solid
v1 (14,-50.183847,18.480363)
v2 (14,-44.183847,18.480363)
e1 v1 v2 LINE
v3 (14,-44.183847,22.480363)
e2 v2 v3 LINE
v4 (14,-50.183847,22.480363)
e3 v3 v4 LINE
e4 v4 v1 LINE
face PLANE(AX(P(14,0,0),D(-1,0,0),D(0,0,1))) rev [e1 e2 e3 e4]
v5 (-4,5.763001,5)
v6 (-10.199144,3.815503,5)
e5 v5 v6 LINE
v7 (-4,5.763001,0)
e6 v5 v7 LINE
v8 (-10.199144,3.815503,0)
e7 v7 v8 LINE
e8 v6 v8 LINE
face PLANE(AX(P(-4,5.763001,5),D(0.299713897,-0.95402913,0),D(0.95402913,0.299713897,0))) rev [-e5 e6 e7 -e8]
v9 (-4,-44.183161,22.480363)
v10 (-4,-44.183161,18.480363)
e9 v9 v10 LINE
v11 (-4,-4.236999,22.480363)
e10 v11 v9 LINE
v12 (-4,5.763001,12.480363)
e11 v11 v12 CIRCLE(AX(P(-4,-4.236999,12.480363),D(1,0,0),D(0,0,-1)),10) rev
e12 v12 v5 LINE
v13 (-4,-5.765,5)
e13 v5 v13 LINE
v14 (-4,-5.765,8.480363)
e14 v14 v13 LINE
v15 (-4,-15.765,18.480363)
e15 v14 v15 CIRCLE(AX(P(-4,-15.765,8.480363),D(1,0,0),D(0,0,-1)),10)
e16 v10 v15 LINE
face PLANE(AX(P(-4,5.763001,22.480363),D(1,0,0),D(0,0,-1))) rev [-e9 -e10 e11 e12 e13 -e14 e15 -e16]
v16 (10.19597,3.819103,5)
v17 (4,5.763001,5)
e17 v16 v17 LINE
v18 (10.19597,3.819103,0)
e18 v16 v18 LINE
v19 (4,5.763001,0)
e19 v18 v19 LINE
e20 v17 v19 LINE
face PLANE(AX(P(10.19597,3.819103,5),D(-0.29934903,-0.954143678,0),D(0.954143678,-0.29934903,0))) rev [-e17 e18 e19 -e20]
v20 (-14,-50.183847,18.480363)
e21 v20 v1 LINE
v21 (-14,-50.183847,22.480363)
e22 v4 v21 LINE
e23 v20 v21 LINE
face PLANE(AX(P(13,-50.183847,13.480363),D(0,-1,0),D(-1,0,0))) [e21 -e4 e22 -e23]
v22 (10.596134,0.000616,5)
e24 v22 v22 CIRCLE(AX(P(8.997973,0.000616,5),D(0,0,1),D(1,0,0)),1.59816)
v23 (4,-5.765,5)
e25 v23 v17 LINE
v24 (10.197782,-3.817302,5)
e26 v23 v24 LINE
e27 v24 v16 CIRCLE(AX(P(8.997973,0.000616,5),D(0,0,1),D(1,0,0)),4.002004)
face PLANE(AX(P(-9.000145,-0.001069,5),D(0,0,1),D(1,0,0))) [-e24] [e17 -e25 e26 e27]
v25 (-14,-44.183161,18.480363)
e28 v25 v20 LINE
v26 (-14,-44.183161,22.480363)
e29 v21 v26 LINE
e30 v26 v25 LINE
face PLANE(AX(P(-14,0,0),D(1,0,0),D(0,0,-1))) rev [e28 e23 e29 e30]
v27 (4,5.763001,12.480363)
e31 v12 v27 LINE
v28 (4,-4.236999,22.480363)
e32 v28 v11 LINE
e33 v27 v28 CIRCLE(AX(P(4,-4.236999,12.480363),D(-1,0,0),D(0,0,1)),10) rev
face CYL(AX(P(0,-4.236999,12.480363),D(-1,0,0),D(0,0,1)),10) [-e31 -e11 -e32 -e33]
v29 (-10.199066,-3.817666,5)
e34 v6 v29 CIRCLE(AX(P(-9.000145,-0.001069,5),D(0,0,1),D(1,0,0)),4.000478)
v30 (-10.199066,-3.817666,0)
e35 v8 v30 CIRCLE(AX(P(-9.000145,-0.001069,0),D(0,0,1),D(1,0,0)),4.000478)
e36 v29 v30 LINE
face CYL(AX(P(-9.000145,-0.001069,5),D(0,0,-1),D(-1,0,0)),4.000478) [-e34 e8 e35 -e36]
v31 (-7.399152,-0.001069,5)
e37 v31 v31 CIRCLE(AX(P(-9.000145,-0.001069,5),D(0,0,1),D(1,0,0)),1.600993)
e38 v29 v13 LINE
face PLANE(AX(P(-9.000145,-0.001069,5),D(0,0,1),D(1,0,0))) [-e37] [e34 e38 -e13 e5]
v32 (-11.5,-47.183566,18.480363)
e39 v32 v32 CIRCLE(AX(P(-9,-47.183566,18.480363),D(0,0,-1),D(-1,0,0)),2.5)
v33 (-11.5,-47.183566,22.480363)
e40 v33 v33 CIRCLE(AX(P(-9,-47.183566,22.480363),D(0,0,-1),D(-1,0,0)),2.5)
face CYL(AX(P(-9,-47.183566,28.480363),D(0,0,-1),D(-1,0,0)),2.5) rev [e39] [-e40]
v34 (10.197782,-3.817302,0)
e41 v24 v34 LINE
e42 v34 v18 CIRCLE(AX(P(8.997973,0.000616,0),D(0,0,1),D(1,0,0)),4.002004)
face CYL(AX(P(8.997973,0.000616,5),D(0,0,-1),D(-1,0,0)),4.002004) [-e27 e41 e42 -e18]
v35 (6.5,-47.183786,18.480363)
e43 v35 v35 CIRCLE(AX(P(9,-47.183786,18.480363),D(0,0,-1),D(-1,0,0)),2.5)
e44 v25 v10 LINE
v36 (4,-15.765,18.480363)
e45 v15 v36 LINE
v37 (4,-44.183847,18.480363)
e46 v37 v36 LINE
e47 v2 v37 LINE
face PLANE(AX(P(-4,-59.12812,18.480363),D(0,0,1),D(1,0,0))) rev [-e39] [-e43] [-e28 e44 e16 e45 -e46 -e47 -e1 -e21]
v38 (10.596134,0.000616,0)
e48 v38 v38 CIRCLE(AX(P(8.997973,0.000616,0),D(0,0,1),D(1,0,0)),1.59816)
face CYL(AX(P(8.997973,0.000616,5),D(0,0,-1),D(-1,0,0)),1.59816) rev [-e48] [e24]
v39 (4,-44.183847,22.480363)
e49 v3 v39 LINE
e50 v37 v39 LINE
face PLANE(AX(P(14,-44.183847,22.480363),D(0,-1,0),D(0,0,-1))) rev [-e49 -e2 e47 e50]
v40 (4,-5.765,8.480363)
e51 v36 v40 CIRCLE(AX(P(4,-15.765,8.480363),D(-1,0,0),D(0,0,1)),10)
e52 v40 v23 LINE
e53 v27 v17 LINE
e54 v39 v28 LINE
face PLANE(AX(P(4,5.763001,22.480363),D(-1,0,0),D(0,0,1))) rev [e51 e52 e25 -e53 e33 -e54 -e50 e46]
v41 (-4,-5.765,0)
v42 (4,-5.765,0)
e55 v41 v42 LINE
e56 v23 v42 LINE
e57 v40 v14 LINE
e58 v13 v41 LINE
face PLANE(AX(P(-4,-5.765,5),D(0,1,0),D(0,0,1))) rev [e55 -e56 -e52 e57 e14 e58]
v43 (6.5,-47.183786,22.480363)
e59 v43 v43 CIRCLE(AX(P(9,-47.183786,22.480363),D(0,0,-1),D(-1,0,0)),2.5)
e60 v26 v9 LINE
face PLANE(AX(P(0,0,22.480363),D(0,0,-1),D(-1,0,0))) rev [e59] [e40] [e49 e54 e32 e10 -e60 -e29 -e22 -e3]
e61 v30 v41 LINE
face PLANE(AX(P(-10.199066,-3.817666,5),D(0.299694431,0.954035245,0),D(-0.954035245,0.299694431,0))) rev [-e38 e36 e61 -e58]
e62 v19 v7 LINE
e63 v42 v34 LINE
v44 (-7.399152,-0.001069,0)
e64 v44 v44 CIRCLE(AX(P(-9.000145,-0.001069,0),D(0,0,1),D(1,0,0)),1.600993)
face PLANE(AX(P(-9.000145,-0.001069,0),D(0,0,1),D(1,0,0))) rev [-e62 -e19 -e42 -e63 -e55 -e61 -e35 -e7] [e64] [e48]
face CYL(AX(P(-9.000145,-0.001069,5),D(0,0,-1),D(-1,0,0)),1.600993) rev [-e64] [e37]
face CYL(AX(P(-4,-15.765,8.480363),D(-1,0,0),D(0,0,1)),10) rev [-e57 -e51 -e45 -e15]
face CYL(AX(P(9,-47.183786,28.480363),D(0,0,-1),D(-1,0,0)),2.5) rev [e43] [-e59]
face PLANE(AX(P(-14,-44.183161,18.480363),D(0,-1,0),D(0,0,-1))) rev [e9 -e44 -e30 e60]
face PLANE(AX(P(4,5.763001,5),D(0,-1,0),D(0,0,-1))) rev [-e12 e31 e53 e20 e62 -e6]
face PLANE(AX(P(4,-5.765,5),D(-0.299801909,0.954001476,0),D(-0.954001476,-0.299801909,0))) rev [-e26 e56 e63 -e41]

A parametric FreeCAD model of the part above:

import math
import FreeCAD as App
import Part
import Sketcher
from FreeCAD import Vector


def edges_at(feature, points):
    """Names of the edges that pass closest to the given points."""
    edges = feature.Shape.Edges
    near = lambda p: min(range(len(edges)), key=lambda i: edges[i].distToShape(Part.Vertex(*p))[0])
    return sorted({f"Edge{near(p) + 1}" for p in points})

doc = App.newDocument("Part")
body = doc.addObject("PartDesign::Body", "Body")

# Sketch on XY plane
sketch1 = body.newObject("Sketcher::SketchObject", "Sketch")
sketch1.AttachmentSupport = (doc.getObject("XY_Plane"), [""])
sketch1.MapMode = "FlatFace"
sketch1.addGeometry(Part.LineSegment(Vector(-10.199066, -3.817666, 0), Vector(-4, -5.765, 0)), False)
sketch1.addGeometry(Part.LineSegment(Vector(-4, -5.765, 0), Vector(4, -5.765, 0)), False)
sketch1.addGeometry(Part.LineSegment(Vector(4, -5.765, 0), Vector(10.197782, -3.817302, 0)), False)
sketch1.addGeometry(Part.ArcOfCircle(Part.Circle(Vector(8.997973, 0.000616, 0), Vector(0, 0, 1), 4.002004), math.radians(-72.554294), math.radians(72.581491)), False)
sketch1.addGeometry(Part.LineSegment(Vector(10.19597, 3.819103, 0), Vector(4, 5.763001, 0)), False)
sketch1.addGeometry(Part.LineSegment(Vector(4, 5.763001, 0), Vector(-4, 5.763001, 0)), False)
sketch1.addGeometry(Part.LineSegment(Vector(-4, 5.763001, 0), Vector(-10.199144, 3.815503, 0)), False)
sketch1.addGeometry(Part.ArcOfCircle(Part.Circle(Vector(-9.000145, -0.001069, 0), Vector(0, 0, 1), 4.000478), math.radians(107.44042), math.radians(252.560749)), False)
sketch1.addGeometry(Part.Circle(Vector(-9.000145, -0.001069, 0), Vector(0, 0, 1), 1.600993), False)
sketch1.addGeometry(Part.Circle(Vector(8.997973, 0.000616, 0), Vector(0, 0, 1), 1.59816), False)
sketch1.addConstraint(Sketcher.Constraint("Coincident", 0, 2, 1, 1))
sketch1.addConstraint(Sketcher.Constraint("Coincident", 1, 2, 2, 1))
sketch1.addConstraint(Sketcher.Constraint("Tangent", 2, 2, 3, 1))
sketch1.addConstraint(Sketcher.Constraint("Tangent", 3, 2, 4, 1))
sketch1.addConstraint(Sketcher.Constraint("Coincident", 4, 2, 5, 1))
sketch1.addConstraint(Sketcher.Constraint("Coincident", 5, 2, 6, 1))
sketch1.addConstraint(Sketcher.Constraint("Tangent", 6, 2, 7, 1))
sketch1.addConstraint(Sketcher.Constraint("Tangent", 7, 2, 0, 1))
sketch1.addConstraint(Sketcher.Constraint("Horizontal", 1))
sketch1.addConstraint(Sketcher.Constraint("Horizontal", 5))
sketch1.addConstraint(Sketcher.Constraint("Coincident", 8, 3, 7, 3))
sketch1.addConstraint(Sketcher.Constraint("Coincident", 9, 3, 3, 3))
sketch1.addConstraint(Sketcher.Constraint("Vertical", 1, 2, 4, 2))
sketch1.addConstraint(Sketcher.Constraint("Vertical", 0, 2, 5, 2))
sketch1.addConstraint(Sketcher.Constraint("DistanceX", 1, 1, 1, 2, 8.0))
sketch1.addConstraint(Sketcher.Constraint("DistanceX", 0, 2, -1, 1, 4.0))
sketch1.addConstraint(Sketcher.Constraint("Diameter", 9, 3.196321))
sketch1.addConstraint(Sketcher.Constraint("Diameter", 8, 3.201987))
sketch1.addConstraint(Sketcher.Constraint("DistanceY", 0, 2, -1, 1, 5.765))
sketch1.addConstraint(Sketcher.Constraint("DistanceY", -1, 1, 4, 2, 5.763001))
sketch1.addConstraint(Sketcher.Constraint("Radius", 3, 4.002004))
sketch1.addConstraint(Sketcher.Constraint("Radius", 7, 4.000478))
sketch1.addConstraint(Sketcher.Constraint("DistanceX", 6, 2, 7, 3, 1.198999))
sketch1.addConstraint(Sketcher.Constraint("DistanceY", 2, 2, -1, 1, 3.817302))
sketch1.addConstraint(Sketcher.Constraint("Distance", 4, 6.493749))
sketch1.addConstraint(Sketcher.Constraint("DistanceY", 7, 3, -1, 1, 0.001069))
pad1 = body.newObject("PartDesign::Pad", "Pad")
pad1.Profile = sketch1
pad1.Length = 5

# Sketch on XY plane
sketch2 = body.newObject("Sketcher::SketchObject", "Sketch001")
sketch2.AttachmentSupport = (doc.getObject("XY_Plane"), [""])
sketch2.MapMode = "FlatFace"
sketch2.AttachmentOffset = App.Placement(Vector(0, 0, 5), App.Rotation())
sketch2.addGeometry(Part.LineSegment(Vector(-4, 5.763001, 0), Vector(-4, -5.765, 0)), False)
sketch2.addGeometry(Part.LineSegment(Vector(-4, -5.765, 0), Vector(4, -5.765, 0)), False)
sketch2.addGeometry(Part.LineSegment(Vector(4, -5.765, 0), Vector(4, 5.763001, 0)), False)
sketch2.addGeometry(Part.LineSegment(Vector(4, 5.763001, 0), Vector(-4, 5.763001, 0)), False)
sketch2.addConstraint(Sketcher.Constraint("Coincident", 0, 2, 1, 1))
sketch2.addConstraint(Sketcher.Constraint("Coincident", 1, 2, 2, 1))
sketch2.addConstraint(Sketcher.Constraint("Coincident", 2, 2, 3, 1))
sketch2.addConstraint(Sketcher.Constraint("Coincident", 3, 2, 0, 1))
sketch2.addConstraint(Sketcher.Constraint("Vertical", 0))
sketch2.addConstraint(Sketcher.Constraint("Horizontal", 1))
sketch2.addConstraint(Sketcher.Constraint("Vertical", 2))
sketch2.addConstraint(Sketcher.Constraint("Horizontal", 3))
sketch2.addConstraint(Sketcher.Constraint("DistanceX", 1, 1, 1, 2, 8.0))
sketch2.addConstraint(Sketcher.Constraint("DistanceX", 0, 2, -1, 1, 4.0))
sketch2.addConstraint(Sketcher.Constraint("DistanceY", 0, 2, 0, 1, 11.528001))
sketch2.addConstraint(Sketcher.Constraint("DistanceY", 0, 2, -1, 1, 5.765))
pad2 = body.newObject("PartDesign::Pad", "Pad001")
pad2.Profile = sketch2
pad2.Length = 17.480363

# Sketch on XZ plane
sketch3 = body.newObject("Sketcher::SketchObject", "Sketch002")
sketch3.AttachmentSupport = (doc.getObject("XZ_Plane"), [""])
sketch3.MapMode = "FlatFace"
sketch3.AttachmentOffset = App.Placement(Vector(0, 0, 5.765), App.Rotation())
sketch3.addGeometry(Part.LineSegment(Vector(-4, 22.480363, 0), Vector(-4, 18.480363, 0)), False)
sketch3.addGeometry(Part.LineSegment(Vector(-4, 18.480363, 0), Vector(4, 18.480363, 0)), False)
sketch3.addGeometry(Part.LineSegment(Vector(4, 18.480363, 0), Vector(4, 22.480363, 0)), False)
sketch3.addGeometry(Part.LineSegment(Vector(4, 22.480363, 0), Vector(-4, 22.480363, 0)), False)
sketch3.addConstraint(Sketcher.Constraint("Coincident", 0, 2, 1, 1))
sketch3.addConstraint(Sketcher.Constraint("Coincident", 1, 2, 2, 1))
sketch3.addConstraint(Sketcher.Constraint("Coincident", 2, 2, 3, 1))
sketch3.addConstraint(Sketcher.Constraint("Coincident", 3, 2, 0, 1))
sketch3.addConstraint(Sketcher.Constraint("Vertical", 0))
sketch3.addConstraint(Sketcher.Constraint("Horizontal", 1))
sketch3.addConstraint(Sketcher.Constraint("Vertical", 2))
sketch3.addConstraint(Sketcher.Constraint("Horizontal", 3))
sketch3.addConstraint(Sketcher.Constraint("DistanceX", 1, 1, 1, 2, 8.0))
sketch3.addConstraint(Sketcher.Constraint("DistanceY", 0, 2, 0, 1, 4.0))
sketch3.addConstraint(Sketcher.Constraint("DistanceX", 0, 2, -1, 1, 4.0))
sketch3.addConstraint(Sketcher.Constraint("DistanceY", -1, 1, 0, 2, 18.480363))
pad3 = body.newObject("PartDesign::Pad", "Pad002")
pad3.Profile = sketch3
pad3.Length = 44.418848

# Sketch on YZ plane
sketch4 = body.newObject("Sketcher::SketchObject", "Sketch003")
sketch4.AttachmentSupport = (doc.getObject("YZ_Plane"), [""])
sketch4.MapMode = "FlatFace"
sketch4.AttachmentOffset = App.Placement(Vector(0, 0, -4), App.Rotation())
sketch4.addGeometry(Part.LineSegment(Vector(-44.183161, 18.480363, 0), Vector(-50.183847, 18.480363, 0)), False)
sketch4.addGeometry(Part.LineSegment(Vector(-50.183847, 18.480363, 0), Vector(-50.183847, 22.480363, 0)), False)
sketch4.addGeometry(Part.LineSegment(Vector(-50.183847, 22.480363, 0), Vector(-44.183161, 22.480363, 0)), False)
sketch4.addGeometry(Part.LineSegment(Vector(-44.183161, 22.480363, 0), Vector(-44.183161, 18.480363, 0)), False)
sketch4.addConstraint(Sketcher.Constraint("Coincident", 0, 2, 1, 1))
sketch4.addConstraint(Sketcher.Constraint("Coincident", 1, 2, 2, 1))
sketch4.addConstraint(Sketcher.Constraint("Coincident", 2, 2, 3, 1))
sketch4.addConstraint(Sketcher.Constraint("Coincident", 3, 2, 0, 1))
sketch4.addConstraint(Sketcher.Constraint("Horizontal", 0))
sketch4.addConstraint(Sketcher.Constraint("Vertical", 1))
sketch4.addConstraint(Sketcher.Constraint("Horizontal", 2))
sketch4.addConstraint(Sketcher.Constraint("Vertical", 3))
sketch4.addConstraint(Sketcher.Constraint("DistanceY", 1, 1, 1, 2, 4.0))
sketch4.addConstraint(Sketcher.Constraint("DistanceX", 0, 2, 0, 1, 6.000686))
sketch4.addConstraint(Sketcher.Constraint("DistanceX", 2, 2, -1, 1, 44.183161))
sketch4.addConstraint(Sketcher.Constraint("DistanceY", -1, 1, 0, 2, 18.480363))
pad4 = body.newObject("PartDesign::Pad", "Pad003")
pad4.Profile = sketch4
pad4.Length = 10
pad4.Reversed = True

# Sketch on YZ plane
sketch5 = body.newObject("Sketcher::SketchObject", "Sketch004")
sketch5.AttachmentSupport = (doc.getObject("YZ_Plane"), [""])
sketch5.MapMode = "FlatFace"
sketch5.AttachmentOffset = App.Placement(Vector(0, 0, 4), App.Rotation())
sketch5.addGeometry(Part.LineSegment(Vector(-44.183847, 22.480363, 0), Vector(-50.183847, 22.480363, 0)), False)
sketch5.addGeometry(Part.LineSegment(Vector(-50.183847, 22.480363, 0), Vector(-50.183847, 18.480363, 0)), False)
sketch5.addGeometry(Part.LineSegment(Vector(-50.183847, 18.480363, 0), Vector(-44.183847, 18.480363, 0)), False)
sketch5.addGeometry(Part.LineSegment(Vector(-44.183847, 18.480363, 0), Vector(-44.183847, 22.480363, 0)), False)
sketch5.addConstraint(Sketcher.Constraint("Coincident", 0, 2, 1, 1))
sketch5.addConstraint(Sketcher.Constraint("Coincident", 1, 2, 2, 1))
sketch5.addConstraint(Sketcher.Constraint("Coincident", 2, 2, 3, 1))
sketch5.addConstraint(Sketcher.Constraint("Coincident", 3, 2, 0, 1))
sketch5.addConstraint(Sketcher.Constraint("Horizontal", 0))
sketch5.addConstraint(Sketcher.Constraint("Vertical", 1))
sketch5.addConstraint(Sketcher.Constraint("Horizontal", 2))
sketch5.addConstraint(Sketcher.Constraint("Vertical", 3))
sketch5.addConstraint(Sketcher.Constraint("DistanceX", 0, 2, 0, 1, 6.0))
sketch5.addConstraint(Sketcher.Constraint("DistanceY", 1, 2, 1, 1, 4.0))
sketch5.addConstraint(Sketcher.Constraint("DistanceX", 0, 2, -1, 1, 50.183847))
sketch5.addConstraint(Sketcher.Constraint("DistanceY", -1, 1, 0, 2, 22.480363))
pad5 = body.newObject("PartDesign::Pad", "Pad004")
pad5.Profile = sketch5
pad5.Length = 10
doc.recompute()

fillet = body.newObject("PartDesign::Fillet", "Fillet")
fillet.Base = (pad5, edges_at(pad5, [(0, -5.765, 18.48)]))
fillet.Radius = 10
doc.recompute()

fillet2 = body.newObject("PartDesign::Fillet", "Fillet001")
fillet2.Base = (fillet, edges_at(fillet, [(0, 5.763, 22.48)]))
fillet2.Radius = 10

# Sketch on XY plane
sketch6 = body.newObject("Sketcher::SketchObject", "Sketch005")
sketch6.AttachmentSupport = (doc.getObject("XY_Plane"), [""])
sketch6.MapMode = "FlatFace"
sketch6.AttachmentOffset = App.Placement(Vector(0, 0, 18.480363), App.Rotation())
sketch6.addGeometry(Part.Circle(Vector(9, -47.183786, 0), Vector(0, 0, 1), 2.5), False)
sketch6.addGeometry(Part.Circle(Vector(-9, -47.183566, 0), Vector(0, 0, 1), 2.5), False)
sketch6.addConstraint(Sketcher.Constraint("Equal", 0, 1))
sketch6.addConstraint(Sketcher.Constraint("Diameter", 0, 5.0))
sketch6.addConstraint(Sketcher.Constraint("DistanceX", -1, 1, 0, 3, 9.0))
sketch6.addConstraint(Sketcher.Constraint("DistanceX", 1, 3, -1, 1, 9.0))
sketch6.addConstraint(Sketcher.Constraint("DistanceY", 0, 3, 1, 3, 0.000221))
sketch6.addConstraint(Sketcher.Constraint("DistanceY", 0, 3, -1, 1, 47.183786))
pocket1 = body.newObject("PartDesign::Pocket", "Pocket")
pocket1.Profile = sketch6
pocket1.Length = 10
pocket1.Reversed = True

doc.recompute()
